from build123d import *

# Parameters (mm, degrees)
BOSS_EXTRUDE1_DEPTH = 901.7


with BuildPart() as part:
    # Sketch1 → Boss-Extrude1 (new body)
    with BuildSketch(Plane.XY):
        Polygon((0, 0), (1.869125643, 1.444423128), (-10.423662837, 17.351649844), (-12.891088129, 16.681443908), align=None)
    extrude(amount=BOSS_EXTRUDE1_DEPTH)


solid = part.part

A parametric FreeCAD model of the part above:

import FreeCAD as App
import Part
import Sketcher
Q = App.Units.Quantity


def add_polygon(sketch, points):
    """Adds a closed chain of lines whose ends are joined by coincident constraints."""
    first, n = sketch.GeometryCount, len(points)
    for a, b in zip(points, points[1:] + points[:1]):
        sketch.addGeometry(Part.LineSegment(App.Vector(*a, 0), App.Vector(*b, 0)), False)
    for i in range(n):
        sketch.addConstraint(Sketcher.Constraint("Coincident", first + i, 2, first + (i + 1) % n, 1))

doc = App.newDocument("Part")
body = doc.addObject("PartDesign::Body", "Body")

# Sketch on XY plane
sketch1 = body.newObject("Sketcher::SketchObject", "Sketch")
sketch1.AttachmentSupport = (doc.getObject("XY_Plane"), [""])
sketch1.MapMode = "FlatFace"
add_polygon(sketch1, [(0, 0), (1.9, 1.4), (-10.4, 17.4), (-12.9, 16.7)])  # lines 0-3
sketch1.addConstraint([
    Sketcher.Constraint("Coincident", 3, 2, -1, 1),
    Sketcher.Constraint("Perpendicular", 0, 1),
    Sketcher.Constraint("Parallel", 1, 3),
    Sketcher.Constraint("Distance", 3, Q("0.83 in")),
    Sketcher.Constraint("Distance", 0, Q("0.093 in")),
    Sketcher.Constraint("DistanceY", -1, 1, 1, 2, Q("17.35165 mm")),
    Sketcher.Constraint("DistanceX", 2, 2, -1, 1, Q("12.891088 mm")),
])
pad1 = body.newObject("PartDesign::Pad", "Pad")
pad1.Profile = sketch1
pad1.Length = Q("35.5 in")

doc.recompute()
